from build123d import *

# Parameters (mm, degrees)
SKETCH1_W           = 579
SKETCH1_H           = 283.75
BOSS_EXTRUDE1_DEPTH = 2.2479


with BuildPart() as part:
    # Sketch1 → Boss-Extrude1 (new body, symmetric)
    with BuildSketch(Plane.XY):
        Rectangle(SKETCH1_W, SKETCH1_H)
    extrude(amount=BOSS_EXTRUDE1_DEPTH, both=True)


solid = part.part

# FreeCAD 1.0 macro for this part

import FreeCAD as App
import Part
import Sketcher
from FreeCAD import Vector


def add_polygon(sketch, points):
    """Adds a closed chain of lines whose ends are joined by coincident constraints."""
    first, n = sketch.GeometryCount, len(points)
    for a, b in zip(points, points[1:] + points[:1]):
        sketch.addGeometry(Part.LineSegment(App.Vector(*a, 0), App.Vector(*b, 0)), False)
    for i in range(n):
        sketch.addConstraint(Sketcher.Constraint("Coincident", first + i, 2, first + (i + 1) % n, 1))

doc = App.newDocument("Part")
body = doc.addObject("PartDesign::Body", "Body")

# Sketch on XY plane
sketch1 = body.newObject("Sketcher::SketchObject", "Sketch")
sketch1.AttachmentSupport = (doc.getObject("XY_Plane"), [""])
sketch1.MapMode = "FlatFace"
add_polygon(sketch1, [(-290, 142), (-290, -142), (290, -142), (290, 142)])  # lines 0-3
sketch1.addConstraint([
    Sketcher.Constraint("Vertical", 0),
    Sketcher.Constraint("Horizontal", 1),
    Sketcher.Constraint("Vertical", 2),
    Sketcher.Constraint("Horizontal", 3),
    Sketcher.Constraint("Symmetric", 0, 2, 2, 2, -1, 1),
    Sketcher.Constraint("DistanceX", 1, 1, 1, 2, 579.0),
    Sketcher.Constraint("DistanceY", 0, 2, 0, 1, 283.75),
])
pad1 = body.newObject("PartDesign::Pad", "Pad")
pad1.Profile = sketch1
pad1.Length = 4.4958
pad1.Midplane = True

doc.recompute()
